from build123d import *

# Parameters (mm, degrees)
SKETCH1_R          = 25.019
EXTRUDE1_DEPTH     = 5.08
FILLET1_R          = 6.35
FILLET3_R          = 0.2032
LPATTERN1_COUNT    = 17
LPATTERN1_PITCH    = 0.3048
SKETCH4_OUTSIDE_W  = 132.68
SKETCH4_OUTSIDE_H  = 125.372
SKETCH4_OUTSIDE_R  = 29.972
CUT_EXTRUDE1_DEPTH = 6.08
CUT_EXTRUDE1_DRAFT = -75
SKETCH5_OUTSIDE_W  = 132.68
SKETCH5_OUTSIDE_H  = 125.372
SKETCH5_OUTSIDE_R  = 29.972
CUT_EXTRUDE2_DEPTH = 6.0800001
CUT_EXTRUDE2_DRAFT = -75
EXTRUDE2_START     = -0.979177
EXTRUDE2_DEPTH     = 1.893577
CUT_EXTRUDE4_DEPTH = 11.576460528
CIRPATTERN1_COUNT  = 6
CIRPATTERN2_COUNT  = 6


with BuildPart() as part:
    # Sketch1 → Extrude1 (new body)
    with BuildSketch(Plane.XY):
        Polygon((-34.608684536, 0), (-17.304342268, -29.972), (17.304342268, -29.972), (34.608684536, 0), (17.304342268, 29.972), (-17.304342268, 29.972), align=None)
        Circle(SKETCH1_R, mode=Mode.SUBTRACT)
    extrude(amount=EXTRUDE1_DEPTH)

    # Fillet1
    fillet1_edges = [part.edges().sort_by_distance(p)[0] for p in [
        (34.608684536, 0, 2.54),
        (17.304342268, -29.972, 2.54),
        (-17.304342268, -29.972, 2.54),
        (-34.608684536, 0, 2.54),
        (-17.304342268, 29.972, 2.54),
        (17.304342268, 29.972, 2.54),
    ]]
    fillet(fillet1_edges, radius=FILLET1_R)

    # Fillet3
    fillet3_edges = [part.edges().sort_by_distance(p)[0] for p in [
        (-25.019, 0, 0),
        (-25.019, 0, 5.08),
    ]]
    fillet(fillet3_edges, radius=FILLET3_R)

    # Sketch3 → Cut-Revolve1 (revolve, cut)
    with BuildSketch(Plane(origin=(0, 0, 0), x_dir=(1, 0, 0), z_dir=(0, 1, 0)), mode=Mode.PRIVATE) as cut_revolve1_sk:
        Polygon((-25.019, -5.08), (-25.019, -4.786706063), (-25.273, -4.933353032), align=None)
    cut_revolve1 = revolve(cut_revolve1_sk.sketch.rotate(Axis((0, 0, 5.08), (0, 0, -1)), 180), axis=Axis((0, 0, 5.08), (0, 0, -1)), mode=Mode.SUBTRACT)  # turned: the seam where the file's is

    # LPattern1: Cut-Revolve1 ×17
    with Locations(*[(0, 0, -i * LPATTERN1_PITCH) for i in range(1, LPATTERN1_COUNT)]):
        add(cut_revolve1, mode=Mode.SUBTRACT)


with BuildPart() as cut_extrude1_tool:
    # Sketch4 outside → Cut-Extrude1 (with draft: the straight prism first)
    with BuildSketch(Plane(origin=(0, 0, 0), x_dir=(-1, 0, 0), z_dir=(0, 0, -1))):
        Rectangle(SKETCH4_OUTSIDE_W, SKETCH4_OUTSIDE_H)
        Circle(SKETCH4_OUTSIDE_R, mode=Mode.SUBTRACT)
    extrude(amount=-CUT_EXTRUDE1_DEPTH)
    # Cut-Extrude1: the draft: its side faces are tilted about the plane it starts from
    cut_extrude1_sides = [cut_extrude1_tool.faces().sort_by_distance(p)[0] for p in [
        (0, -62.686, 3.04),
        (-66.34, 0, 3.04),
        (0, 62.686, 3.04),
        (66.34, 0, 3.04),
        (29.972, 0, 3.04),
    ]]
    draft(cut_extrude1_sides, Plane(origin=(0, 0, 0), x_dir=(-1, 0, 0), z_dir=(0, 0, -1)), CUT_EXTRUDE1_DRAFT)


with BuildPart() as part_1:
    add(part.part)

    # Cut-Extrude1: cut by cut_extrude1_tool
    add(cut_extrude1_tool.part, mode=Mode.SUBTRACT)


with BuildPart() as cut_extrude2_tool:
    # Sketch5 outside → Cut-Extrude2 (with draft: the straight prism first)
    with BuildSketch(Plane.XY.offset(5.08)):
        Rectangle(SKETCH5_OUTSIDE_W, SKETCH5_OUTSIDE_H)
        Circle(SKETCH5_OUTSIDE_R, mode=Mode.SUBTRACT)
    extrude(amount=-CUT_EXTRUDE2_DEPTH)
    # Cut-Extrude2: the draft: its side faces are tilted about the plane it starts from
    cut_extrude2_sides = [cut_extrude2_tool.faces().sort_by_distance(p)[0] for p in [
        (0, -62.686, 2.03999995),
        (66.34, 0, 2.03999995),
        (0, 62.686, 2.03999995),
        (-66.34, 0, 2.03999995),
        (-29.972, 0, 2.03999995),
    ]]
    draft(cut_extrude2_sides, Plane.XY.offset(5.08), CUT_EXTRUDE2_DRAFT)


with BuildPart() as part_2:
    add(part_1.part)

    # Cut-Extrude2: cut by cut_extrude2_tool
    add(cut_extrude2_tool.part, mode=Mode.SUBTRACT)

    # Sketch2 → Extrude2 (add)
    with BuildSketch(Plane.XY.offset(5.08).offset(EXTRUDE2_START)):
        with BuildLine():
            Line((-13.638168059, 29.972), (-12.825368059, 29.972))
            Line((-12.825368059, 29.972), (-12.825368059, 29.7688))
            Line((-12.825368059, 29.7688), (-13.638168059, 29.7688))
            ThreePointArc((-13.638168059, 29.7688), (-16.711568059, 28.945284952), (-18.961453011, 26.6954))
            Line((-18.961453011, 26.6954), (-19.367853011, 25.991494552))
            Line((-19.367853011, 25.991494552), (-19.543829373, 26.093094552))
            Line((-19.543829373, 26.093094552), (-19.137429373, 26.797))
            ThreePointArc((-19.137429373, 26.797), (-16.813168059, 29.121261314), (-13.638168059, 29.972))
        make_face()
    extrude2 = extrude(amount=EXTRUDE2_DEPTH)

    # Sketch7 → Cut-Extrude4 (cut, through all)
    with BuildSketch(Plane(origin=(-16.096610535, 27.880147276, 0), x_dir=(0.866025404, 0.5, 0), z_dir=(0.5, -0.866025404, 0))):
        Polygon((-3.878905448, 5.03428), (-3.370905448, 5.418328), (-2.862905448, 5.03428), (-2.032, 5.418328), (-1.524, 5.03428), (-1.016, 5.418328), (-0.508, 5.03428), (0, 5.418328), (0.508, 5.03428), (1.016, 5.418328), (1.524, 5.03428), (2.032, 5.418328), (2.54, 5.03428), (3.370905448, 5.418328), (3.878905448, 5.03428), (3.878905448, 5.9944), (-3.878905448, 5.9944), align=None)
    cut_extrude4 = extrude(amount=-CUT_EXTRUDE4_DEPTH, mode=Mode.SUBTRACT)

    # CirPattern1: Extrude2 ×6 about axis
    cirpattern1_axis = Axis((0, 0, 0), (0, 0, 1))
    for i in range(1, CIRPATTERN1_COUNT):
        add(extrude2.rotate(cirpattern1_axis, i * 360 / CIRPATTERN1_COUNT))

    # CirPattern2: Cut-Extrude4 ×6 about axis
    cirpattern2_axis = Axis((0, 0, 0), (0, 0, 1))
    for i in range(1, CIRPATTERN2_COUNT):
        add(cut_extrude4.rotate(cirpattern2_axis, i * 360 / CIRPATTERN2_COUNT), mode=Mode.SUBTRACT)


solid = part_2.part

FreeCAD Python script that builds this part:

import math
import FreeCAD as App
import Part
import Sketcher
Q = App.Units.Quantity


def edges_at(feature, points):
    """Names of the edges that pass closest to the given points."""
    edges = feature.Shape.Edges
    near = lambda p: min(range(len(edges)), key=lambda i: edges[i].distToShape(Part.Vertex(*p))[0])
    return sorted({f"Edge{near(p) + 1}" for p in points})


def faces_at(feature, points):
    """Names of the faces that lie closest to the given points."""
    faces = feature.Shape.Faces
    near = lambda p: min(range(len(faces)), key=lambda i: faces[i].distToShape(Part.Vertex(*p))[0])
    return sorted({f"Face{near(p) + 1}" for p in points})

doc = App.newDocument("Part")
body = doc.addObject("PartDesign::Body", "Body")

# Sketch on XY plane
sketch1 = body.newObject("Sketcher::SketchObject", "Sketch")
sketch1.AttachmentSupport = (doc.getObject("XY_Plane"), [""])
sketch1.MapMode = "FlatFace"
sketch1.addGeometry([
    Part.LineSegment(App.Vector(-35, 0, 0), App.Vector(-17, -30, 0)),  # 0
    Part.LineSegment(App.Vector(-17, -30, 0), App.Vector(17, -30, 0)),  # 1
    Part.LineSegment(App.Vector(17, -30, 0), App.Vector(35, 0, 0)),  # 2
    Part.LineSegment(App.Vector(35, 0, 0), App.Vector(17, 30, 0)),  # 3
    Part.LineSegment(App.Vector(17, 30, 0), App.Vector(-17, 30, 0)),  # 4
    Part.LineSegment(App.Vector(-17, 30, 0), App.Vector(-35, 0, 0)),  # 5
    Part.Circle(App.Vector(0, 0, 0), App.Vector(0, 0, 1), 25),  # 6
], False)
sketch1.addConstraint([
    Sketcher.Constraint("Coincident", 0, 2, 1, 1),
    Sketcher.Constraint("Coincident", 1, 2, 2, 1),
    Sketcher.Constraint("Coincident", 2, 2, 3, 1),
    Sketcher.Constraint("Coincident", 3, 2, 4, 1),
    Sketcher.Constraint("Coincident", 4, 2, 5, 1),
    Sketcher.Constraint("Coincident", 5, 2, 0, 1),
    Sketcher.Constraint("Horizontal", 1),
    Sketcher.Constraint("Horizontal", 4),
    Sketcher.Constraint("Coincident", 6, 3, -1, 1),
    Sketcher.Constraint("Symmetric", 0, 2, 3, 2, -1, 1),
    Sketcher.Constraint("Symmetric", 2, 2, 5, 2, -1, 1),
    Sketcher.Constraint("PointOnObject", 2, 2, -1),
    Sketcher.Constraint("Parallel", 2, 5),
    Sketcher.Constraint("Vertical", 1, 2, 3, 2),
    Sketcher.Constraint("Diameter", 6, Q("1.97 in")),
    Sketcher.Constraint("Angle", 0, Q("-60 deg")),
    Sketcher.Constraint("DistanceY", 0, 2, -1, 1, Q("1.18 in")),
    Sketcher.Constraint("DistanceX", 1, 1, 1, 2, Q("34.608685 mm")),
])
pad1 = body.newObject("PartDesign::Pad", "Pad")
pad1.Profile = sketch1
pad1.Length = Q("0.2 in")
doc.recompute()

fillet = body.newObject("PartDesign::Fillet", "Fillet")
fillet.Base = (pad1, edges_at(pad1, [
    (34.609, 0, 2.54),
    (17.304, -29.972, 2.54),
    (-17.304, -29.972, 2.54),
    (-34.609, 0, 2.54),
    (-17.304, 29.972, 2.54),
    (17.304, 29.972, 2.54),
]))
fillet.Radius = Q("0.25 in")
doc.recompute()

fillet2 = body.newObject("PartDesign::Fillet", "Fillet001")
fillet2.Base = (fillet, edges_at(fillet, [(-25.019, 0, 0), (-25.019, 0, 5.08)]))
fillet2.Radius = Q("0.008 in")

# Sketch on XZ plane
sketch2 = body.newObject("Sketcher::SketchObject", "Sketch001")
sketch2.AttachmentSupport = (doc.getObject("XZ_Plane"), [""])
sketch2.MapMode = "FlatFace"
sketch2.addGeometry([
    Part.LineSegment(App.Vector(-25.02, 5.08, 0), App.Vector(-25.02, 4.79, 0)),
    Part.LineSegment(App.Vector(-25.02, 4.79, 0), App.Vector(-25.27, 4.93, 0)),
    Part.LineSegment(App.Vector(-25.27, 4.93, 0), App.Vector(-25.02, 5.08, 0)),
], False)
sketch2.addConstraint([
    Sketcher.Constraint("Coincident", 0, 2, 1, 1),
    Sketcher.Constraint("Coincident", 1, 2, 2, 1),
    Sketcher.Constraint("Coincident", 2, 2, 0, 1),
    Sketcher.Constraint("Vertical", 0),
    Sketcher.Constraint("Equal", 1, 2),
    Sketcher.Constraint("Angle", 1, Q("150 deg")),
    Sketcher.Constraint("DistanceY", -1, 1, 2, 2, Q("0.2 in")),
    Sketcher.Constraint("DistanceX", 1, 2, 0, 2, Q("0.01 in")),
    Sketcher.Constraint("DistanceX", 0, 2, -1, 1, Q("0.985 in")),
])
groove = body.newObject("PartDesign::Groove", "Groove")
groove.Profile = sketch2
groove.ReferenceAxis = (sketch2, ["V_Axis"])
groove.Angle = 360
doc.recompute()

linearpattern = body.newObject("PartDesign::LinearPattern", "LinearPattern")
linearpattern.Originals = [groove]
linearpattern.Direction = (doc.getObject("Z_Axis"), [""])
linearpattern.Mode = "offset"
linearpattern.Offset = Q("0.012 in")
linearpattern.Occurrences = 17
linearpattern.Reversed = True
body.Tip = linearpattern
body2 = doc.addObject("PartDesign::Body", "Body001")

# Sketch on XY plane
sketch3 = body2.newObject("Sketcher::SketchObject", "Sketch002")
sketch3.AttachmentSupport = (doc.getObject("XY_Plane001"), [""])
sketch3.MapMode = "FlatFace"
sketch3.addGeometry([
    Part.LineSegment(App.Vector(66, 63, 0), App.Vector(66, -63, 0)),  # 0
    Part.LineSegment(App.Vector(66, -63, 0), App.Vector(-66, -63, 0)),  # 1
    Part.LineSegment(App.Vector(-66, -63, 0), App.Vector(-66, 63, 0)),  # 2
    Part.LineSegment(App.Vector(-66, 63, 0), App.Vector(66, 63, 0)),  # 3
    Part.Circle(App.Vector(0, 0, 0), App.Vector(0, 0, 1), 30),  # 4
], False)
sketch3.addConstraint([
    Sketcher.Constraint("Coincident", 0, 2, 1, 1),
    Sketcher.Constraint("Coincident", 1, 2, 2, 1),
    Sketcher.Constraint("Coincident", 2, 2, 3, 1),
    Sketcher.Constraint("Coincident", 3, 2, 0, 1),
    Sketcher.Constraint("Vertical", 0),
    Sketcher.Constraint("Horizontal", 1),
    Sketcher.Constraint("Vertical", 2),
    Sketcher.Constraint("Horizontal", 3),
    Sketcher.Constraint("Coincident", 4, 3, -1, 1),
    Sketcher.Constraint("Symmetric", 0, 2, 2, 2, -1, 1),
    Sketcher.Constraint("Diameter", 4, Q("2.36 in")),
    Sketcher.Constraint("DistanceX", 1, 2, 1, 1, Q("132.68 mm")),
    Sketcher.Constraint("DistanceY", 0, 2, 0, 1, Q("125.372 mm")),
])
pad2 = body2.newObject("PartDesign::Pad", "Pad001")
pad2.Profile = sketch3
pad2.Length = 6.08
doc.recompute()

draft = body2.newObject("PartDesign::Draft", "Draft")
draft.Base = (pad2, faces_at(pad2, [
    (0, -62.686, 3.04),
    (-66.34, 0, 3.04),
    (0, 62.686, 3.04),
    (66.34, 0, 3.04),
    (29.972, 0, 3.04),
]))
draft.NeutralPlane = (doc.getObject("XY_Plane001"), [""])
draft.Angle = 75
draft.Reversed = False
doc.recompute()

boolean = body.newObject("PartDesign::Boolean", "Boolean")
boolean.Type = "Cut"
boolean.addObjects([body2])
body3 = doc.addObject("PartDesign::Body", "Body002")

# Sketch on XY plane
sketch4 = body3.newObject("Sketcher::SketchObject", "Sketch003")
sketch4.AttachmentSupport = (doc.getObject("XY_Plane002"), [""])
sketch4.MapMode = "FlatFace"
sketch4.AttachmentOffset = App.Placement(App.Vector(0, 0, 0.2 * 25.4), App.Rotation())
sketch4.addGeometry([
    Part.LineSegment(App.Vector(-66, 63, 0), App.Vector(-66, -63, 0)),  # 0
    Part.LineSegment(App.Vector(-66, -63, 0), App.Vector(66, -63, 0)),  # 1
    Part.LineSegment(App.Vector(66, -63, 0), App.Vector(66, 63, 0)),  # 2
    Part.LineSegment(App.Vector(66, 63, 0), App.Vector(-66, 63, 0)),  # 3
    Part.Circle(App.Vector(0, 0, 0), App.Vector(0, 0, 1), 30),  # 4
], False)
sketch4.addConstraint([
    Sketcher.Constraint("Coincident", 0, 2, 1, 1),
    Sketcher.Constraint("Coincident", 1, 2, 2, 1),
    Sketcher.Constraint("Coincident", 2, 2, 3, 1),
    Sketcher.Constraint("Coincident", 3, 2, 0, 1),
    Sketcher.Constraint("Vertical", 0),
    Sketcher.Constraint("Horizontal", 1),
    Sketcher.Constraint("Vertical", 2),
    Sketcher.Constraint("Horizontal", 3),
    Sketcher.Constraint("Coincident", 4, 3, -1, 1),
    Sketcher.Constraint("Symmetric", 0, 2, 2, 2, -1, 1),
    Sketcher.Constraint("Diameter", 4, Q("2.36 in")),
    Sketcher.Constraint("DistanceX", 1, 1, 1, 2, Q("132.68 mm")),
    Sketcher.Constraint("DistanceY", 0, 2, 0, 1, Q("125.372 mm")),
])
pad3 = body3.newObject("PartDesign::Pad", "Pad002")
pad3.Profile = sketch4
pad3.Length = 6.08
pad3.Reversed = True
doc.recompute()

datumplane = body3.newObject("PartDesign::Plane", "DatumPlane")
datumplane.AttachmentSupport = (doc.getObject("XY_Plane002"), [""])
datumplane.MapMode = "FlatFace"
datumplane.AttachmentOffset = App.Placement(App.Vector(0, 0, 0.2 * 25.4), App.Rotation())
draft2 = body3.newObject("PartDesign::Draft", "Draft001")
draft2.Base = (pad3, faces_at(pad3, [
    (0, -62.686, 2.04),
    (66.34, 0, 2.04),
    (0, 62.686, 2.04),
    (-66.34, 0, 2.04),
    (-29.972, 0, 2.04),
]))
draft2.NeutralPlane = (datumplane, [""])
draft2.Angle = 75
draft2.Reversed = True
doc.recompute()

boolean2 = body.newObject("PartDesign::Boolean", "Boolean001")
boolean2.Type = "Cut"
boolean2.addObjects([body3])

# Sketch on XY plane
sketch5 = body.newObject("Sketcher::SketchObject", "Sketch004")
sketch5.AttachmentSupport = (doc.getObject("XY_Plane"), [""])
sketch5.MapMode = "FlatFace"
sketch5.AttachmentOffset = App.Placement(App.Vector(0, 0, 4.100823), App.Rotation())
sketch5.addGeometry([
    Part.LineSegment(App.Vector(-12.83, 29.97, 0), App.Vector(-13.64, 29.97, 0)),  # 0
    Part.ArcOfCircle(Part.Circle(App.Vector(-13.64, 23.62, 0), App.Vector(0, 0, 1), 6.35), math.radians(90), math.radians(150)),  # 1
    Part.LineSegment(App.Vector(-19.14, 26.8, 0), App.Vector(-19.54, 26.09, 0)),  # 2
    Part.LineSegment(App.Vector(-19.54, 26.09, 0), App.Vector(-19.37, 25.99, 0)),  # 3
    Part.LineSegment(App.Vector(-19.37, 25.99, 0), App.Vector(-18.96, 26.7, 0)),  # 4
    Part.ArcOfCircle(Part.Circle(App.Vector(-13.64, 23.62, 0), App.Vector(0, 0, 1), 6.15), math.radians(90), math.radians(150)),  # 5
    Part.LineSegment(App.Vector(-13.64, 29.77, 0), App.Vector(-12.83, 29.77, 0)),  # 6
    Part.LineSegment(App.Vector(-12.83, 29.77, 0), App.Vector(-12.83, 29.97, 0)),  # 7
], False)
sketch5.addConstraint([
    Sketcher.Constraint("Tangent", 0, 2, 1, 1),
    Sketcher.Constraint("Tangent", 1, 2, 2, 1),
    Sketcher.Constraint("Coincident", 2, 2, 3, 1),
    Sketcher.Constraint("Coincident", 3, 2, 4, 1),
    Sketcher.Constraint("Tangent", 4, 2, 5, 2),
    Sketcher.Constraint("Tangent", 5, 1, 6, 1),
    Sketcher.Constraint("Coincident", 6, 2, 7, 1),
    Sketcher.Constraint("Coincident", 7, 2, 0, 1),
    Sketcher.Constraint("Horizontal", 0),
    Sketcher.Constraint("Horizontal", 6),
    Sketcher.Constraint("Vertical", 7),
    Sketcher.Constraint("Coincident", 5, 3, 1, 3),
    Sketcher.Constraint("Perpendicular", 2, 3),
    Sketcher.Constraint("Perpendicular", 3, 4),
    Sketcher.Constraint("Radius", 1, Q("0.25 in")),
    Sketcher.Constraint("Angle", 2, Q("-120 deg")),
    Sketcher.Constraint("Radius", 5, Q("0.242 in")),
    Sketcher.Constraint("DistanceX", 0, 2, 0, 1, Q("0.032 in")),
    Sketcher.Constraint("DistanceY", -1, 1, 1, 3, Q("0.93 in")),
    Sketcher.Constraint("Distance", 2, Q("0.032 in")),
    Sketcher.Constraint("DistanceX", 1, 3, -1, 1, Q("13.638168 mm")),
])
pad4 = body.newObject("PartDesign::Pad", "Pad003")
pad4.Profile = sketch5
pad4.Length = 1.893577

# Sketch on an angled plane
sketch6 = body.newObject("Sketcher::SketchObject", "Sketch005")
sketch6.Placement = App.Placement(App.Vector(-16.096611, 27.880147, 0), App.Rotation(App.Vector(0.866025404, 0.5, 0), App.Vector(0, 0, 1), App.Vector(0.5, -0.866025404, 0), "ZXY"))
sketch6.addGeometry([
    Part.LineSegment(App.Vector(-3.9, 5, 0), App.Vector(-3.4, 5.4, 0)),  # 0
    Part.LineSegment(App.Vector(-3.4, 5.4, 0), App.Vector(-2.9, 5, 0)),  # 1
    Part.LineSegment(App.Vector(-2.9, 5, 0), App.Vector(-2, 5.4, 0)),  # 2
    Part.LineSegment(App.Vector(-2, 5.4, 0), App.Vector(-1.5, 5, 0)),  # 3
    Part.LineSegment(App.Vector(-1.5, 5, 0), App.Vector(-1, 5.4, 0)),  # 4
    Part.LineSegment(App.Vector(-1, 5.4, 0), App.Vector(-0.5, 5, 0)),  # 5
    Part.LineSegment(App.Vector(-0.5, 5, 0), App.Vector(0, 5.4, 0)),  # 6
    Part.LineSegment(App.Vector(0, 5.4, 0), App.Vector(0.5, 5, 0)),  # 7
    Part.LineSegment(App.Vector(0.5, 5, 0), App.Vector(1, 5.4, 0)),  # 8
    Part.LineSegment(App.Vector(1, 5.4, 0), App.Vector(1.5, 5, 0)),  # 9
    Part.LineSegment(App.Vector(1.5, 5, 0), App.Vector(2, 5.4, 0)),  # 10
    Part.LineSegment(App.Vector(2, 5.4, 0), App.Vector(2.5, 5, 0)),  # 11
    Part.LineSegment(App.Vector(2.5, 5, 0), App.Vector(3.4, 5.4, 0)),  # 12
    Part.LineSegment(App.Vector(3.4, 5.4, 0), App.Vector(3.9, 5, 0)),  # 13
    Part.LineSegment(App.Vector(3.9, 5, 0), App.Vector(3.9, 6, 0)),  # 14
    Part.LineSegment(App.Vector(3.9, 6, 0), App.Vector(-3.9, 6, 0)),  # 15
    Part.LineSegment(App.Vector(-3.9, 6, 0), App.Vector(-3.9, 5, 0)),  # 16
], False)
sketch6.addConstraint([
    Sketcher.Constraint("Coincident", 0, 2, 1, 1),
    Sketcher.Constraint("Coincident", 1, 2, 2, 1),
    Sketcher.Constraint("Coincident", 2, 2, 3, 1),
    Sketcher.Constraint("Coincident", 3, 2, 4, 1),
    Sketcher.Constraint("Coincident", 4, 2, 5, 1),
    Sketcher.Constraint("Coincident", 5, 2, 6, 1),
    Sketcher.Constraint("Coincident", 6, 2, 7, 1),
    Sketcher.Constraint("Coincident", 7, 2, 8, 1),
    Sketcher.Constraint("Coincident", 8, 2, 9, 1),
    Sketcher.Constraint("Coincident", 9, 2, 10, 1),
    Sketcher.Constraint("Coincident", 10, 2, 11, 1),
    Sketcher.Constraint("Coincident", 11, 2, 12, 1),
    Sketcher.Constraint("Coincident", 12, 2, 13, 1),
    Sketcher.Constraint("Coincident", 13, 2, 14, 1),
    Sketcher.Constraint("Coincident", 14, 2, 15, 1),
    Sketcher.Constraint("Coincident", 15, 2, 16, 1),
    Sketcher.Constraint("Coincident", 16, 2, 0, 1),
    Sketcher.Constraint("Vertical", 14),
    Sketcher.Constraint("Horizontal", 15),
    Sketcher.Constraint("Vertical", 16),
    Sketcher.Constraint("Symmetric", 5, 2, 7, 2, -2),
    Sketcher.Constraint("Symmetric", 4, 2, 8, 2, -2),
    Sketcher.Constraint("Symmetric", 3, 2, 9, 2, -2),
    Sketcher.Constraint("Symmetric", 2, 2, 10, 2, -2),
    Sketcher.Constraint("Symmetric", 0, 2, 12, 2, -2),
    Sketcher.Constraint("Symmetric", 13, 2, 16, 2, -2),
    Sketcher.Constraint("PointOnObject", 6, 2, -2),
    Sketcher.Constraint("Parallel", 1, 3),
    Sketcher.Constraint("Parallel", 0, 4),
    Sketcher.Constraint("Parallel", 3, 5),
    Sketcher.Constraint("Parallel", 4, 6),
    Sketcher.Constraint("Parallel", 5, 7),
    Sketcher.Constraint("Parallel", 9, 11),
    Sketcher.Constraint("Parallel", 2, 12),
    Sketcher.Constraint("Horizontal", 0, 2, 2, 2),
    Sketcher.Constraint("Horizontal", 1, 2, 3, 2),
    Sketcher.Constraint("Horizontal", 2, 2, 4, 2),
    Sketcher.Constraint("Horizontal", 3, 2, 5, 2),
    Sketcher.Constraint("Horizontal", 4, 2, 6, 2),
    Sketcher.Constraint("Horizontal", 11, 2, 13, 2),
    Sketcher.Constraint("DistanceX", -1, 1, 11, 2, Q("0.1 in")),
    Sketcher.Constraint("DistanceY", 14, 1, 14, 2, Q("0.0378 in")),
    Sketcher.Constraint("DistanceY", -1, 1, 14, 2, Q("0.236 in")),
    Sketcher.Constraint("DistanceX", 15, 2, 15, 1, Q("7.757811 mm")),
    Sketcher.Constraint("DistanceY", -1, 1, 0, 2, Q("5.418328 mm")),
])
pocket1 = body.newObject("PartDesign::Pocket", "Pocket")
pocket1.Profile = sketch6
pocket1.Type = "ThroughAll"
doc.recompute()

polarpattern = body.newObject("PartDesign::PolarPattern", "PolarPattern")
polarpattern.Originals = [pad4]
polarpattern.Axis = (doc.getObject("Z_Axis"), [""])
polarpattern.Angle = 360
polarpattern.Occurrences = 6
body.Tip = polarpattern
doc.recompute()

polarpattern2 = body.newObject("PartDesign::PolarPattern", "PolarPattern001")
polarpattern2.Originals = [pocket1]
polarpattern2.Axis = (doc.getObject("Z_Axis"), [""])
polarpattern2.Angle = 360
polarpattern2.Occurrences = 6
body.Tip = polarpattern2

doc.recompute()
